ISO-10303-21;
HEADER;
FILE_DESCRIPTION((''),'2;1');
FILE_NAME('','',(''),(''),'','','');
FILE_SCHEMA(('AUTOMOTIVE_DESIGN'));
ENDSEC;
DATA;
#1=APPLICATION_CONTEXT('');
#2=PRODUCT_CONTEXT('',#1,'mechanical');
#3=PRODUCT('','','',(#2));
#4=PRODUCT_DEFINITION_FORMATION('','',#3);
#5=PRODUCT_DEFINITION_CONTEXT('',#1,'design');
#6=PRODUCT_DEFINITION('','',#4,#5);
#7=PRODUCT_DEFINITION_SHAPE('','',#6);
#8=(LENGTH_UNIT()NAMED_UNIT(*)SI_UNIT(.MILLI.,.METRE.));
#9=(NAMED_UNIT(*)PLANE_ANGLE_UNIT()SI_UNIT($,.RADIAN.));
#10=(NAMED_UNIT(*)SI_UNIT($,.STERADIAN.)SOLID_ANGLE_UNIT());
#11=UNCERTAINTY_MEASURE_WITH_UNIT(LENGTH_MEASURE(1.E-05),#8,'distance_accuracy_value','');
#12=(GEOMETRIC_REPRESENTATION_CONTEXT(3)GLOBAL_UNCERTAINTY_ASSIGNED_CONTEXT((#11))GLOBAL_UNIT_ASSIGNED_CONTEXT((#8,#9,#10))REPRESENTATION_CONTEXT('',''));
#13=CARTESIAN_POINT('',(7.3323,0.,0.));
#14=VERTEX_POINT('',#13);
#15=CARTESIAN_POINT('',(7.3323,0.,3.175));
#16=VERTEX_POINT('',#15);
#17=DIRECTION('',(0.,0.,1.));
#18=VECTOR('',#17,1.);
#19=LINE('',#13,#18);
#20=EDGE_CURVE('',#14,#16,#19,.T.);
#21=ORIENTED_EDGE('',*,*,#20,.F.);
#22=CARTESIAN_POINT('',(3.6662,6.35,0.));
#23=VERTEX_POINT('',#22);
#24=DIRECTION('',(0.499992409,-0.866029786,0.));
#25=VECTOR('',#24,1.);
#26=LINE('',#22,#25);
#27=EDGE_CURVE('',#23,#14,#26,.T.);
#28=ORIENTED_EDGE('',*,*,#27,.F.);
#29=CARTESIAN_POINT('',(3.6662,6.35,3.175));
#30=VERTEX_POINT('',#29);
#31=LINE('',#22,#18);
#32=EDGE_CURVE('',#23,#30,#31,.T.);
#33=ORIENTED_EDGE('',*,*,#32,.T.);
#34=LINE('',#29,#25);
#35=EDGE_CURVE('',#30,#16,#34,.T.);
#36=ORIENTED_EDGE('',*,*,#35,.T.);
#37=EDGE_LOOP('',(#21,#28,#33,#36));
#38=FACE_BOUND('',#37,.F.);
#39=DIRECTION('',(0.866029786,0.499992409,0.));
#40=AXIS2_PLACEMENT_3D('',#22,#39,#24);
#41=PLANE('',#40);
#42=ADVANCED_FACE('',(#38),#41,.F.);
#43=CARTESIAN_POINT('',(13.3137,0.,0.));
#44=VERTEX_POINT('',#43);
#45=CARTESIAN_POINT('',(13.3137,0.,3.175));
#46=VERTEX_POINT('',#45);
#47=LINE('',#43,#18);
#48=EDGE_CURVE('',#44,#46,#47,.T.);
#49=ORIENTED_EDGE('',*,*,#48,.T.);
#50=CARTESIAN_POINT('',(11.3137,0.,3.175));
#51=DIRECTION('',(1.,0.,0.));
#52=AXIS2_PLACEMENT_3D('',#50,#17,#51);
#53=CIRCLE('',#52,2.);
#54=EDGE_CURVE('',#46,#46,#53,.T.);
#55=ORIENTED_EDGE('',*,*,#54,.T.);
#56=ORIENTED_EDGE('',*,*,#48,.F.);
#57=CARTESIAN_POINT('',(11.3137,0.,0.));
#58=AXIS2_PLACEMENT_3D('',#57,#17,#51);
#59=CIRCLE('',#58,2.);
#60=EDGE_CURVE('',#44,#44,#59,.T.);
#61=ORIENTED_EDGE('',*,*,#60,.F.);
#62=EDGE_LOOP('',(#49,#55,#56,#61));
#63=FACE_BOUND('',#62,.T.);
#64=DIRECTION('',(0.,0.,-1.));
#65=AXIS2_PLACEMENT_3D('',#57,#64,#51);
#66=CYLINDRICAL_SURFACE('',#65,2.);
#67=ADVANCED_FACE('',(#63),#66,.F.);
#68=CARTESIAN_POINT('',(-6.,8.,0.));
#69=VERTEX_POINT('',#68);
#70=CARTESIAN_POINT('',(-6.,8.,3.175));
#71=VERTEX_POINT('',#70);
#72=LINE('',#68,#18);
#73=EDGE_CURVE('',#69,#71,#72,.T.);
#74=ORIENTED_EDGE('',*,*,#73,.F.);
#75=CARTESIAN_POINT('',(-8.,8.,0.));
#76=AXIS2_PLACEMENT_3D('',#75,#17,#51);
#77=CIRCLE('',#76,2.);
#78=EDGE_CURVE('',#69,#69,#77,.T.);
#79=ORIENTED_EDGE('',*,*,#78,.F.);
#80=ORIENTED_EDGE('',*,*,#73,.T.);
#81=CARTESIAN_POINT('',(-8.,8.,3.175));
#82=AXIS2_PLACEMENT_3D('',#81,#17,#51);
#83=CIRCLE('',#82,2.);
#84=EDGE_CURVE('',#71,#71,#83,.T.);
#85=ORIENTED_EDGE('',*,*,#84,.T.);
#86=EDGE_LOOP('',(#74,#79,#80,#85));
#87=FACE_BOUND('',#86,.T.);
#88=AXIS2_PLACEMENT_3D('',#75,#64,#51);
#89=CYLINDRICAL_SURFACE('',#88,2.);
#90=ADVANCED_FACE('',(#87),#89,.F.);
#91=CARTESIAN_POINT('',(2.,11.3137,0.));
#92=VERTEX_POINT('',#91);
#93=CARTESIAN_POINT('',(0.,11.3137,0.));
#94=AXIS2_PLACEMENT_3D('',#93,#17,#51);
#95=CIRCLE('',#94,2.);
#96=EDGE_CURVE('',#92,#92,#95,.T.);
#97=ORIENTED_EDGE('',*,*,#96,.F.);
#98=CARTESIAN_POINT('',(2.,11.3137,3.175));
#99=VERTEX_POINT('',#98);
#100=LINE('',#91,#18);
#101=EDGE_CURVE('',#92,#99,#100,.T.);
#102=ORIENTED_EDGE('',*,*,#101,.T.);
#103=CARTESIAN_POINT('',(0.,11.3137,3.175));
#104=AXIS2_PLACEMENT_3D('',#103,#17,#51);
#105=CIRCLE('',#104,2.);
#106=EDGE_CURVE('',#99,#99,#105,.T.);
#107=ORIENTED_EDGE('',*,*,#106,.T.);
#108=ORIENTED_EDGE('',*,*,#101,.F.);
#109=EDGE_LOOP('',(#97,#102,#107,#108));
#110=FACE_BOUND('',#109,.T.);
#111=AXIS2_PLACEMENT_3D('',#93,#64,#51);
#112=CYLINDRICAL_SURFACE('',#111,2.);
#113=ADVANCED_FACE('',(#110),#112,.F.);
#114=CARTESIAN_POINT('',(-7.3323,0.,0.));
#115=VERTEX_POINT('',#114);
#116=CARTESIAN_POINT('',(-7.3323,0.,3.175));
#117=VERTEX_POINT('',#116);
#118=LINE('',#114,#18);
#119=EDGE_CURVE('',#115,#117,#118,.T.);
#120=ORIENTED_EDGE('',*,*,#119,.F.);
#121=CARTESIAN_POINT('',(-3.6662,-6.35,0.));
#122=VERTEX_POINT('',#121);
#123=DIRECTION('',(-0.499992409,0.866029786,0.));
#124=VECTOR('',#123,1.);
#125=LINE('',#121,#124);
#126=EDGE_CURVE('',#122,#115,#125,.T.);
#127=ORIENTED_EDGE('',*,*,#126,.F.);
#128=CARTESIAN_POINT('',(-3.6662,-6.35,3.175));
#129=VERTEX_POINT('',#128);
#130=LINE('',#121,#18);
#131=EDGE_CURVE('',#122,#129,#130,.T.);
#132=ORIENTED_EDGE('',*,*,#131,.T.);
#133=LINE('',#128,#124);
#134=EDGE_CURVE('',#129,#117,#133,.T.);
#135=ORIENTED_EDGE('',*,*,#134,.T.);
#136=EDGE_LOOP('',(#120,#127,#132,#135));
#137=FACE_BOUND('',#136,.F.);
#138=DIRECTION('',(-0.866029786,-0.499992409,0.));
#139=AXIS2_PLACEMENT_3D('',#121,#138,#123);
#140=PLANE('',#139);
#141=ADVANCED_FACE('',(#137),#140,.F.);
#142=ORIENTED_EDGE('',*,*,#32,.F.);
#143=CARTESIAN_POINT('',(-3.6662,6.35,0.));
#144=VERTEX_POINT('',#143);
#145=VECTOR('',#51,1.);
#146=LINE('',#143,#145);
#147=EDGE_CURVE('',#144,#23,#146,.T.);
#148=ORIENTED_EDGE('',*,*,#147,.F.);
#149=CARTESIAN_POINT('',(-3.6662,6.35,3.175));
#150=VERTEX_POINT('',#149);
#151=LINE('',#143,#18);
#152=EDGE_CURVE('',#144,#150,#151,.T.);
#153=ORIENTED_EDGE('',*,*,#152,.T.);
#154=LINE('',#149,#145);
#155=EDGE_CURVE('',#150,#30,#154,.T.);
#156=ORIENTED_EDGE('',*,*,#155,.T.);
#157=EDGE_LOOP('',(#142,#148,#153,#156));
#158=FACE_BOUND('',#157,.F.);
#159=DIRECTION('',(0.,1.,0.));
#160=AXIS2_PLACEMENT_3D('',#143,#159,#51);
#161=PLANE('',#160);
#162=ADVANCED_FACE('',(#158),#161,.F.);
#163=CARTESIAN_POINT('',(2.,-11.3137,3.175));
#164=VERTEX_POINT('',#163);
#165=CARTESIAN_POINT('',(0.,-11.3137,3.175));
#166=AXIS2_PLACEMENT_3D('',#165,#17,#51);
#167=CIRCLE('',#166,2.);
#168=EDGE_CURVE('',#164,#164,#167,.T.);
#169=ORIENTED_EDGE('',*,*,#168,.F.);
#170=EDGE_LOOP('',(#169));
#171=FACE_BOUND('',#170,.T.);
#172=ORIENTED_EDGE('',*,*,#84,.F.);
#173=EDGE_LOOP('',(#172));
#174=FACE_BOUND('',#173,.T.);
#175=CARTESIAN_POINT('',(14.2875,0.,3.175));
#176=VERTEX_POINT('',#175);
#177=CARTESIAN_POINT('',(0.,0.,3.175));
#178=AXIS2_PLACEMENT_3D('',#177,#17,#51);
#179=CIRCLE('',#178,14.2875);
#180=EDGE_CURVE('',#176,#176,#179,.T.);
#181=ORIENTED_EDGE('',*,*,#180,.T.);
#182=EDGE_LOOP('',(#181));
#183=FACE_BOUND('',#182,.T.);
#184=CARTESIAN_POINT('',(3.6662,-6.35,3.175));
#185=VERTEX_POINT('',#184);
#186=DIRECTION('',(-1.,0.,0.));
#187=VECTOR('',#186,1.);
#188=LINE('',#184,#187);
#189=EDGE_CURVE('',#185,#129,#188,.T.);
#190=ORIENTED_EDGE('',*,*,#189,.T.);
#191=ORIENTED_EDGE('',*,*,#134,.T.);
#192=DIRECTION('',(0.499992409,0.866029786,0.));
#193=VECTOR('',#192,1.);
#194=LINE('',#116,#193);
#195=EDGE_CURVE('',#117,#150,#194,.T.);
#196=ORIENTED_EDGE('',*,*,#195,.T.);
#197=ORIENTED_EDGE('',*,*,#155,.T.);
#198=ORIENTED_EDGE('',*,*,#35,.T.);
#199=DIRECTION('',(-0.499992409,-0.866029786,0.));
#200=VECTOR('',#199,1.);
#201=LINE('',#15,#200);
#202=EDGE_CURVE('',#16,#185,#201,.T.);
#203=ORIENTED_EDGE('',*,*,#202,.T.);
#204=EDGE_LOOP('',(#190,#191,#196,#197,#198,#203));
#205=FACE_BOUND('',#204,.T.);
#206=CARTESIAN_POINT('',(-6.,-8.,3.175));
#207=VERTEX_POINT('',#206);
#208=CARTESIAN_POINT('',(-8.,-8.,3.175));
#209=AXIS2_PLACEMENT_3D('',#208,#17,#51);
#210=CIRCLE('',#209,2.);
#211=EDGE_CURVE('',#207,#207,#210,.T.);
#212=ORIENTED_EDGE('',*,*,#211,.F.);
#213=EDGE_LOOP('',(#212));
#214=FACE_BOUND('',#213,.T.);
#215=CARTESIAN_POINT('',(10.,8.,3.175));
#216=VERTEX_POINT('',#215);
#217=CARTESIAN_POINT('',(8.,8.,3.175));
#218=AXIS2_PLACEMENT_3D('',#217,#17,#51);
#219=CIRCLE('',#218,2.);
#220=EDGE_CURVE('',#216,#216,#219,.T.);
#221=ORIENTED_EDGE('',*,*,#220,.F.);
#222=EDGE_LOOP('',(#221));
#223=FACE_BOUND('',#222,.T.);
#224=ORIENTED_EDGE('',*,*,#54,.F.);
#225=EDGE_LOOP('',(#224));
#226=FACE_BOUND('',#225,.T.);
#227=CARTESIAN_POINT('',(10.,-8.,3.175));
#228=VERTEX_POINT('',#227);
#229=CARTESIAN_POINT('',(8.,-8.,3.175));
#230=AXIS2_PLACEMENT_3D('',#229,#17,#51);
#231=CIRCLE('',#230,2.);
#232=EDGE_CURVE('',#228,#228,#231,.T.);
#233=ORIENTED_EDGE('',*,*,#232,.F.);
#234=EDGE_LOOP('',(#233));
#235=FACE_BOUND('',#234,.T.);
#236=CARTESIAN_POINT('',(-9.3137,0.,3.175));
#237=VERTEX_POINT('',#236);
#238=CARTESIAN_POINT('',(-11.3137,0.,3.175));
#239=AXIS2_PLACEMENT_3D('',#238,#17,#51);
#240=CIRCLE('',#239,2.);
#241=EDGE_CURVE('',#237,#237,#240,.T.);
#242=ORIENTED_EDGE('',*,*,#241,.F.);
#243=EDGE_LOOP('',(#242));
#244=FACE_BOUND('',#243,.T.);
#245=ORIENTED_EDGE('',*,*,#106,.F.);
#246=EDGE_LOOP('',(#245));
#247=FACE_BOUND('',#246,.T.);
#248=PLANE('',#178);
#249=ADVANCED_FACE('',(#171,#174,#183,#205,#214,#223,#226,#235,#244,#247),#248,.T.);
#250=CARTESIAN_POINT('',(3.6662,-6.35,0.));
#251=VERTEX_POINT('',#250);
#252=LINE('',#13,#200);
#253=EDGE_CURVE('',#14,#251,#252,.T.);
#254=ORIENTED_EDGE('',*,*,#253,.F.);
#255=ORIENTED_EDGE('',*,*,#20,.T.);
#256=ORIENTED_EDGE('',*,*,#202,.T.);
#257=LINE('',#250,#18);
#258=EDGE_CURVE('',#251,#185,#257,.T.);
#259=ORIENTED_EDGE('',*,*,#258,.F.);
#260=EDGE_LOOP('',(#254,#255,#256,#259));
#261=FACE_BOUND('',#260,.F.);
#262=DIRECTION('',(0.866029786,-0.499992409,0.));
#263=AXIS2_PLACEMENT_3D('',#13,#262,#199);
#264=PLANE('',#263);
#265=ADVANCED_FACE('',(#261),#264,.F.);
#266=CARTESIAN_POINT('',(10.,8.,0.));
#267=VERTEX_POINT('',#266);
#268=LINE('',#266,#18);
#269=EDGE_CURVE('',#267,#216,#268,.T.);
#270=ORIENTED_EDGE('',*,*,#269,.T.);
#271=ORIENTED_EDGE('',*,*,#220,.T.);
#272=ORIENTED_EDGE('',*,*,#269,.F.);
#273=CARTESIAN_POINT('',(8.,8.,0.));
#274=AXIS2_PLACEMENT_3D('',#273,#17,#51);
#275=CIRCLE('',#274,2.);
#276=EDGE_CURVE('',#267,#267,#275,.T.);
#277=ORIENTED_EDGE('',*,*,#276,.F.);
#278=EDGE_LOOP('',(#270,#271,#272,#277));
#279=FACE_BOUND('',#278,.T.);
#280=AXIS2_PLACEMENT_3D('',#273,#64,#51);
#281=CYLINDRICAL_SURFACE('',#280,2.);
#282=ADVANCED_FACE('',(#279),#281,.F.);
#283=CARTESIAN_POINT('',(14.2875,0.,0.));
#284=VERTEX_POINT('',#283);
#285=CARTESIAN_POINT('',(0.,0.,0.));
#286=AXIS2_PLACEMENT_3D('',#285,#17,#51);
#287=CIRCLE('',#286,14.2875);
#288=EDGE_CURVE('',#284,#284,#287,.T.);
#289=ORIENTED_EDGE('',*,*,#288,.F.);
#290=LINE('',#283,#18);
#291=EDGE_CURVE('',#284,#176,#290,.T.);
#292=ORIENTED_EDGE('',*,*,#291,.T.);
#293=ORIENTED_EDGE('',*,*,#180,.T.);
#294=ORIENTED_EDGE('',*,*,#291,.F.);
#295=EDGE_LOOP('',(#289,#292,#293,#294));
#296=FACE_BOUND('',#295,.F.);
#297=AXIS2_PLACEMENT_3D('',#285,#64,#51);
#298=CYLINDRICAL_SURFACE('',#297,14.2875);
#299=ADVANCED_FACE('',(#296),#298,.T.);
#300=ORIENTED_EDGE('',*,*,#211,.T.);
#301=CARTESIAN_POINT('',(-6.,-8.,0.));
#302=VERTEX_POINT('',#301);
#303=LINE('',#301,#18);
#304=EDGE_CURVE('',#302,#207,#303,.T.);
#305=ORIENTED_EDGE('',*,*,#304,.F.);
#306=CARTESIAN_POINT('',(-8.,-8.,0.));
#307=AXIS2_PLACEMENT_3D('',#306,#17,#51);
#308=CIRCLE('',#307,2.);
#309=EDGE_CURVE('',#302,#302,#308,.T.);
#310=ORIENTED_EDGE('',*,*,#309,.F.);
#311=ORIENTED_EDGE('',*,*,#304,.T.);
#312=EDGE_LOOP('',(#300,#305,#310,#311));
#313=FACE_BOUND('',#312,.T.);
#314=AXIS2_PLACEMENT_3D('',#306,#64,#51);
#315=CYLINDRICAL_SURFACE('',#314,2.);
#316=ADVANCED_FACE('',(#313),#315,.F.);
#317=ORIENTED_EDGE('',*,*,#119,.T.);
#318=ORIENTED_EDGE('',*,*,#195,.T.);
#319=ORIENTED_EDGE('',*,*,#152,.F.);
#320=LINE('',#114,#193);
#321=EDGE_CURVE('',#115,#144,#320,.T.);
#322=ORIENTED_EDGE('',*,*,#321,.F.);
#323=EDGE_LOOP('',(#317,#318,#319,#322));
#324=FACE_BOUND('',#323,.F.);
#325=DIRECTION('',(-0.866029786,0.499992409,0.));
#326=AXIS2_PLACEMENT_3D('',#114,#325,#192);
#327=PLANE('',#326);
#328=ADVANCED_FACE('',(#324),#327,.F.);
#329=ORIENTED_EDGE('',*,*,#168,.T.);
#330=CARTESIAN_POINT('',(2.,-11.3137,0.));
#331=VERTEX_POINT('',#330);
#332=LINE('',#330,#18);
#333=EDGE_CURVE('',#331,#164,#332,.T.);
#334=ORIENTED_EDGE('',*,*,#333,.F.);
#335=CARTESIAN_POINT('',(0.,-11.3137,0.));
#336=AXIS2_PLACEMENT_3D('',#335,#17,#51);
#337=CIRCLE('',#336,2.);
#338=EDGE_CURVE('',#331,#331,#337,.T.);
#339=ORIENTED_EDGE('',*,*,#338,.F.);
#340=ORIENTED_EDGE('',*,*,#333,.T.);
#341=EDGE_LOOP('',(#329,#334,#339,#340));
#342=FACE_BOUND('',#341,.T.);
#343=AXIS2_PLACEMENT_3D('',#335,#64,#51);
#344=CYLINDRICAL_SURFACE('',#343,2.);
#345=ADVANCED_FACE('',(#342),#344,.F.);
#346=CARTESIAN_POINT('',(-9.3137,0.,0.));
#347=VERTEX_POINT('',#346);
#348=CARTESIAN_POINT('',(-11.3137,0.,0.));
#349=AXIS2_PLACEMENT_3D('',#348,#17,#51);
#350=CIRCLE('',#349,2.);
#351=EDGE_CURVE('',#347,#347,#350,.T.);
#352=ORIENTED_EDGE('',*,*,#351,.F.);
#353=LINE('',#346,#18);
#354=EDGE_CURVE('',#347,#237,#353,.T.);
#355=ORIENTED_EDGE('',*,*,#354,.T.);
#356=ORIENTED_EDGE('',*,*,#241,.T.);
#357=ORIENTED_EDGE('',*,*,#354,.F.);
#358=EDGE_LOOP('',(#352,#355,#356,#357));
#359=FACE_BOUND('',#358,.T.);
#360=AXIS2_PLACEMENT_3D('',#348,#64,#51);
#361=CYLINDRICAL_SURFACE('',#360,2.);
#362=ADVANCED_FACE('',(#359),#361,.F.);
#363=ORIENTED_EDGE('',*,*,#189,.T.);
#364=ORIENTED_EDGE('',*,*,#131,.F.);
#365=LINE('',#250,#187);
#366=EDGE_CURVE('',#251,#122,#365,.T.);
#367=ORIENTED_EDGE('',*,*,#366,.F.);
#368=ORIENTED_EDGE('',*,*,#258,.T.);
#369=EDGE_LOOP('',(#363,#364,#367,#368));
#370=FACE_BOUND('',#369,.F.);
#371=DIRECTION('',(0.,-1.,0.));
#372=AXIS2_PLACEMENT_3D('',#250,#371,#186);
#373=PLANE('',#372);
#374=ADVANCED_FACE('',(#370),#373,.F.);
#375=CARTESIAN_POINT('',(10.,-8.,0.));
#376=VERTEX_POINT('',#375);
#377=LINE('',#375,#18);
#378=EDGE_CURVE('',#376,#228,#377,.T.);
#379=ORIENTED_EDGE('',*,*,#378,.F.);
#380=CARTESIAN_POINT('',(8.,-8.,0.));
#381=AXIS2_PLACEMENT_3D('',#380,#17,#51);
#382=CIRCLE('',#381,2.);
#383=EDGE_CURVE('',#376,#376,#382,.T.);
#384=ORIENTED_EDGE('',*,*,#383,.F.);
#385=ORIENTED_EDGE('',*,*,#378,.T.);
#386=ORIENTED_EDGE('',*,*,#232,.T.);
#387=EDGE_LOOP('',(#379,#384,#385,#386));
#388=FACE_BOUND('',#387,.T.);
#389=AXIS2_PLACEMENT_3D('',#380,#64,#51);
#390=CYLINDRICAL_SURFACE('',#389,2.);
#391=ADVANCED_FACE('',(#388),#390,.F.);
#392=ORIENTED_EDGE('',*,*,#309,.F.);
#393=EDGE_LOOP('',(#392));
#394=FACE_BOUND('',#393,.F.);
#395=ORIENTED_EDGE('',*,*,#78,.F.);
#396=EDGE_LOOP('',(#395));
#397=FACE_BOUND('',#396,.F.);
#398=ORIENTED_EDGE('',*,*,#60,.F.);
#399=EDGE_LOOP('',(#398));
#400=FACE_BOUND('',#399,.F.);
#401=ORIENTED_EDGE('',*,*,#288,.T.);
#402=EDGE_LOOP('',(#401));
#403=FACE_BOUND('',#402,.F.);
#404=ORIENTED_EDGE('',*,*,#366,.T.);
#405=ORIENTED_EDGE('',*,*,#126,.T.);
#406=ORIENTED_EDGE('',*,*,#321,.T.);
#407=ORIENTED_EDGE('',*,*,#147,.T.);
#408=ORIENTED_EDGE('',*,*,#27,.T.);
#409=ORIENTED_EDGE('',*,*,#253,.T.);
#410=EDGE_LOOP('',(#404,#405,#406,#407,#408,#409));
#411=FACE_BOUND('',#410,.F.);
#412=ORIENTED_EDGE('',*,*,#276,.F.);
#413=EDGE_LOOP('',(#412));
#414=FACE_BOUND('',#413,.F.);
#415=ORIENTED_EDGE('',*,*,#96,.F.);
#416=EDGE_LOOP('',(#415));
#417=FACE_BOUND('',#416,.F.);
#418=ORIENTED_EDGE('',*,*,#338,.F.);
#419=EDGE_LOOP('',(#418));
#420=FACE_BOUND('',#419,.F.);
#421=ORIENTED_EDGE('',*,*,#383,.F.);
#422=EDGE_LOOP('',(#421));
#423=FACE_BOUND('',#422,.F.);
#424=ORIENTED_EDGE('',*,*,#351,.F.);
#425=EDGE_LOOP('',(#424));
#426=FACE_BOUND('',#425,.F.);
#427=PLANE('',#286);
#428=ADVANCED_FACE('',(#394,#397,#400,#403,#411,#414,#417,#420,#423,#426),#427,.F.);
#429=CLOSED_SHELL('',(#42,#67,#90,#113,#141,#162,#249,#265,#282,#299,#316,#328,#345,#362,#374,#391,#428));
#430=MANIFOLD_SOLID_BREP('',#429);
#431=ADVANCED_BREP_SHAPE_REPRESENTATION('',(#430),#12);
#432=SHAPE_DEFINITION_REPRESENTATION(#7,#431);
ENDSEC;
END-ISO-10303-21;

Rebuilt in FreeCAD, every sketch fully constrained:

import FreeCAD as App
import Part
import Sketcher
from FreeCAD import Vector
Q = App.Units.Quantity

doc = App.newDocument("Part")
params = doc.addObject("Spreadsheet::Sheet", "Params")
for row, (alias, value) in enumerate([
    ("sketch1_diameter", "1.125 in"),
    ("pad1_length", "0.125 in"),
], start=1):
    params.set(f"A{row}", alias)
    params.set(f"B{row}", "=" + value)
    params.setAlias(f"B{row}", alias)

body = doc.addObject("PartDesign::Body", "Body")

# Sketch on XY plane
sketch1 = doc.addObject("Sketcher::SketchObject", "Sketch")
body.addObject(sketch1)
sketch1.AttachmentSupport = (doc.XY_Plane, [""])
sketch1.MapMode = "FlatFace"
sketch1.addGeometry(Part.Circle(Vector(0, 0, 0), Vector(0, 0, 1), 14.3), False)
sketch1.addGeometry(Part.Circle(Vector(-8, -8, 0), Vector(0, 0, 1), 2), False)
sketch1.addGeometry(Part.Circle(Vector(0, -11.3, 0), Vector(0, 0, 1), 2), False)
sketch1.addGeometry(Part.Circle(Vector(8, -8, 0), Vector(0, 0, 1), 2), False)
sketch1.addGeometry(Part.Circle(Vector(-11.3, 0, 0), Vector(0, 0, 1), 2), False)
sketch1.addGeometry(Part.Circle(Vector(-8, 8, 0), Vector(0, 0, 1), 2), False)
sketch1.addGeometry(Part.LineSegment(Vector(-3.7, 6.3, 0), Vector(3.7, 6.3, 0)), False)
sketch1.addGeometry(Part.LineSegment(Vector(3.7, 6.3, 0), Vector(7.3, 0, 0)), False)
sketch1.addGeometry(Part.LineSegment(Vector(7.3, 0, 0), Vector(3.7, -6.3, 0)), False)
sketch1.addGeometry(Part.LineSegment(Vector(3.7, -6.3, 0), Vector(-3.7, -6.3, 0)), False)
sketch1.addGeometry(Part.LineSegment(Vector(-3.7, -6.3, 0), Vector(-7.3, 0, 0)), False)
sketch1.addGeometry(Part.LineSegment(Vector(-7.3, 0, 0), Vector(-3.7, 6.3, 0)), False)
sketch1.addGeometry(Part.Circle(Vector(11.3, 0, 0), Vector(0, 0, 1), 2), False)
sketch1.addGeometry(Part.Circle(Vector(0, 11.3, 0), Vector(0, 0, 1), 2), False)
sketch1.addGeometry(Part.Circle(Vector(8, 8, 0), Vector(0, 0, 1), 2), False)
sketch1.addConstraint(Sketcher.Constraint("Coincident", 6, 2, 7, 1))
sketch1.addConstraint(Sketcher.Constraint("Coincident", 7, 2, 8, 1))
sketch1.addConstraint(Sketcher.Constraint("Coincident", 8, 2, 9, 1))
sketch1.addConstraint(Sketcher.Constraint("Coincident", 9, 2, 10, 1))
sketch1.addConstraint(Sketcher.Constraint("Coincident", 10, 2, 11, 1))
sketch1.addConstraint(Sketcher.Constraint("Coincident", 11, 2, 6, 1))
sketch1.addConstraint(Sketcher.Constraint("Horizontal", 6))
sketch1.addConstraint(Sketcher.Constraint("Horizontal", 9))
sketch1.addConstraint(Sketcher.Constraint("Coincident", 0, 3, -1, 1))
sketch1.addConstraint(Sketcher.Constraint("Equal", 1, 2))
sketch1.addConstraint(Sketcher.Constraint("Equal", 2, 3))
sketch1.addConstraint(Sketcher.Constraint("Equal", 3, 4))
sketch1.addConstraint(Sketcher.Constraint("Equal", 4, 5))
sketch1.addConstraint(Sketcher.Constraint("Equal", 5, 12))
sketch1.addConstraint(Sketcher.Constraint("Equal", 12, 13))
sketch1.addConstraint(Sketcher.Constraint("Equal", 13, 14))
sketch1.addConstraint(Sketcher.Constraint("Symmetric", 3, 3, 5, 3, -1, 1))
sketch1.addConstraint(Sketcher.Constraint("Symmetric", 4, 3, 12, 3, -1, 1))
sketch1.addConstraint(Sketcher.Constraint("Symmetric", 2, 3, 13, 3, -1, 1))
sketch1.addConstraint(Sketcher.Constraint("Symmetric", 1, 3, 14, 3, -1, 1))
sketch1.addConstraint(Sketcher.Constraint("Symmetric", 6, 2, 9, 2, -1, 1))
sketch1.addConstraint(Sketcher.Constraint("Symmetric", 7, 2, 10, 2, -1, 1))
sketch1.addConstraint(Sketcher.Constraint("Symmetric", 1, 3, 3, 3, -2))
sketch1.addConstraint(Sketcher.Constraint("PointOnObject", 2, 3, -2))
sketch1.addConstraint(Sketcher.Constraint("PointOnObject", 4, 3, -1))
sketch1.addConstraint(Sketcher.Constraint("PointOnObject", 7, 2, -1))
sketch1.addConstraint(Sketcher.Constraint("Parallel", 8, 11))
sketch1.addConstraint(Sketcher.Constraint("Vertical", 6, 2, 8, 2))
sketch1.addConstraint(Sketcher.Constraint("Diameter", 0, Q("1.125 in")))
sketch1.addConstraint(Sketcher.Constraint("Diameter", 1, 4.0))
sketch1.addConstraint(Sketcher.Constraint("Angle", 7, Q("-60.0005 deg")))
sketch1.addConstraint(Sketcher.Constraint("DistanceY", -1, 1, 6, 2, Q("0.25 in")))
sketch1.addConstraint(Sketcher.Constraint("DistanceX", 1, 3, 3, 3, 16.0))
sketch1.addConstraint(Sketcher.Constraint("DistanceY", 1, 3, 5, 3, 16.0))
sketch1.addConstraint(Sketcher.Constraint("DistanceX", 6, 1, 6, 2, 7.3324))
sketch1.addConstraint(Sketcher.Constraint("DistanceY", 2, 3, -1, 1, 11.3137))
sketch1.addConstraint(Sketcher.Constraint("DistanceX", 4, 3, -1, 1, 11.3137))
sketch1.setExpression("Constraints[28]", "Params.sketch1_diameter")
pad1 = doc.addObject("PartDesign::Pad", "Pad")
body.addObject(pad1)
pad1.Profile = sketch1
pad1.setExpression("Length", "Params.pad1_length")

doc.recompute()
